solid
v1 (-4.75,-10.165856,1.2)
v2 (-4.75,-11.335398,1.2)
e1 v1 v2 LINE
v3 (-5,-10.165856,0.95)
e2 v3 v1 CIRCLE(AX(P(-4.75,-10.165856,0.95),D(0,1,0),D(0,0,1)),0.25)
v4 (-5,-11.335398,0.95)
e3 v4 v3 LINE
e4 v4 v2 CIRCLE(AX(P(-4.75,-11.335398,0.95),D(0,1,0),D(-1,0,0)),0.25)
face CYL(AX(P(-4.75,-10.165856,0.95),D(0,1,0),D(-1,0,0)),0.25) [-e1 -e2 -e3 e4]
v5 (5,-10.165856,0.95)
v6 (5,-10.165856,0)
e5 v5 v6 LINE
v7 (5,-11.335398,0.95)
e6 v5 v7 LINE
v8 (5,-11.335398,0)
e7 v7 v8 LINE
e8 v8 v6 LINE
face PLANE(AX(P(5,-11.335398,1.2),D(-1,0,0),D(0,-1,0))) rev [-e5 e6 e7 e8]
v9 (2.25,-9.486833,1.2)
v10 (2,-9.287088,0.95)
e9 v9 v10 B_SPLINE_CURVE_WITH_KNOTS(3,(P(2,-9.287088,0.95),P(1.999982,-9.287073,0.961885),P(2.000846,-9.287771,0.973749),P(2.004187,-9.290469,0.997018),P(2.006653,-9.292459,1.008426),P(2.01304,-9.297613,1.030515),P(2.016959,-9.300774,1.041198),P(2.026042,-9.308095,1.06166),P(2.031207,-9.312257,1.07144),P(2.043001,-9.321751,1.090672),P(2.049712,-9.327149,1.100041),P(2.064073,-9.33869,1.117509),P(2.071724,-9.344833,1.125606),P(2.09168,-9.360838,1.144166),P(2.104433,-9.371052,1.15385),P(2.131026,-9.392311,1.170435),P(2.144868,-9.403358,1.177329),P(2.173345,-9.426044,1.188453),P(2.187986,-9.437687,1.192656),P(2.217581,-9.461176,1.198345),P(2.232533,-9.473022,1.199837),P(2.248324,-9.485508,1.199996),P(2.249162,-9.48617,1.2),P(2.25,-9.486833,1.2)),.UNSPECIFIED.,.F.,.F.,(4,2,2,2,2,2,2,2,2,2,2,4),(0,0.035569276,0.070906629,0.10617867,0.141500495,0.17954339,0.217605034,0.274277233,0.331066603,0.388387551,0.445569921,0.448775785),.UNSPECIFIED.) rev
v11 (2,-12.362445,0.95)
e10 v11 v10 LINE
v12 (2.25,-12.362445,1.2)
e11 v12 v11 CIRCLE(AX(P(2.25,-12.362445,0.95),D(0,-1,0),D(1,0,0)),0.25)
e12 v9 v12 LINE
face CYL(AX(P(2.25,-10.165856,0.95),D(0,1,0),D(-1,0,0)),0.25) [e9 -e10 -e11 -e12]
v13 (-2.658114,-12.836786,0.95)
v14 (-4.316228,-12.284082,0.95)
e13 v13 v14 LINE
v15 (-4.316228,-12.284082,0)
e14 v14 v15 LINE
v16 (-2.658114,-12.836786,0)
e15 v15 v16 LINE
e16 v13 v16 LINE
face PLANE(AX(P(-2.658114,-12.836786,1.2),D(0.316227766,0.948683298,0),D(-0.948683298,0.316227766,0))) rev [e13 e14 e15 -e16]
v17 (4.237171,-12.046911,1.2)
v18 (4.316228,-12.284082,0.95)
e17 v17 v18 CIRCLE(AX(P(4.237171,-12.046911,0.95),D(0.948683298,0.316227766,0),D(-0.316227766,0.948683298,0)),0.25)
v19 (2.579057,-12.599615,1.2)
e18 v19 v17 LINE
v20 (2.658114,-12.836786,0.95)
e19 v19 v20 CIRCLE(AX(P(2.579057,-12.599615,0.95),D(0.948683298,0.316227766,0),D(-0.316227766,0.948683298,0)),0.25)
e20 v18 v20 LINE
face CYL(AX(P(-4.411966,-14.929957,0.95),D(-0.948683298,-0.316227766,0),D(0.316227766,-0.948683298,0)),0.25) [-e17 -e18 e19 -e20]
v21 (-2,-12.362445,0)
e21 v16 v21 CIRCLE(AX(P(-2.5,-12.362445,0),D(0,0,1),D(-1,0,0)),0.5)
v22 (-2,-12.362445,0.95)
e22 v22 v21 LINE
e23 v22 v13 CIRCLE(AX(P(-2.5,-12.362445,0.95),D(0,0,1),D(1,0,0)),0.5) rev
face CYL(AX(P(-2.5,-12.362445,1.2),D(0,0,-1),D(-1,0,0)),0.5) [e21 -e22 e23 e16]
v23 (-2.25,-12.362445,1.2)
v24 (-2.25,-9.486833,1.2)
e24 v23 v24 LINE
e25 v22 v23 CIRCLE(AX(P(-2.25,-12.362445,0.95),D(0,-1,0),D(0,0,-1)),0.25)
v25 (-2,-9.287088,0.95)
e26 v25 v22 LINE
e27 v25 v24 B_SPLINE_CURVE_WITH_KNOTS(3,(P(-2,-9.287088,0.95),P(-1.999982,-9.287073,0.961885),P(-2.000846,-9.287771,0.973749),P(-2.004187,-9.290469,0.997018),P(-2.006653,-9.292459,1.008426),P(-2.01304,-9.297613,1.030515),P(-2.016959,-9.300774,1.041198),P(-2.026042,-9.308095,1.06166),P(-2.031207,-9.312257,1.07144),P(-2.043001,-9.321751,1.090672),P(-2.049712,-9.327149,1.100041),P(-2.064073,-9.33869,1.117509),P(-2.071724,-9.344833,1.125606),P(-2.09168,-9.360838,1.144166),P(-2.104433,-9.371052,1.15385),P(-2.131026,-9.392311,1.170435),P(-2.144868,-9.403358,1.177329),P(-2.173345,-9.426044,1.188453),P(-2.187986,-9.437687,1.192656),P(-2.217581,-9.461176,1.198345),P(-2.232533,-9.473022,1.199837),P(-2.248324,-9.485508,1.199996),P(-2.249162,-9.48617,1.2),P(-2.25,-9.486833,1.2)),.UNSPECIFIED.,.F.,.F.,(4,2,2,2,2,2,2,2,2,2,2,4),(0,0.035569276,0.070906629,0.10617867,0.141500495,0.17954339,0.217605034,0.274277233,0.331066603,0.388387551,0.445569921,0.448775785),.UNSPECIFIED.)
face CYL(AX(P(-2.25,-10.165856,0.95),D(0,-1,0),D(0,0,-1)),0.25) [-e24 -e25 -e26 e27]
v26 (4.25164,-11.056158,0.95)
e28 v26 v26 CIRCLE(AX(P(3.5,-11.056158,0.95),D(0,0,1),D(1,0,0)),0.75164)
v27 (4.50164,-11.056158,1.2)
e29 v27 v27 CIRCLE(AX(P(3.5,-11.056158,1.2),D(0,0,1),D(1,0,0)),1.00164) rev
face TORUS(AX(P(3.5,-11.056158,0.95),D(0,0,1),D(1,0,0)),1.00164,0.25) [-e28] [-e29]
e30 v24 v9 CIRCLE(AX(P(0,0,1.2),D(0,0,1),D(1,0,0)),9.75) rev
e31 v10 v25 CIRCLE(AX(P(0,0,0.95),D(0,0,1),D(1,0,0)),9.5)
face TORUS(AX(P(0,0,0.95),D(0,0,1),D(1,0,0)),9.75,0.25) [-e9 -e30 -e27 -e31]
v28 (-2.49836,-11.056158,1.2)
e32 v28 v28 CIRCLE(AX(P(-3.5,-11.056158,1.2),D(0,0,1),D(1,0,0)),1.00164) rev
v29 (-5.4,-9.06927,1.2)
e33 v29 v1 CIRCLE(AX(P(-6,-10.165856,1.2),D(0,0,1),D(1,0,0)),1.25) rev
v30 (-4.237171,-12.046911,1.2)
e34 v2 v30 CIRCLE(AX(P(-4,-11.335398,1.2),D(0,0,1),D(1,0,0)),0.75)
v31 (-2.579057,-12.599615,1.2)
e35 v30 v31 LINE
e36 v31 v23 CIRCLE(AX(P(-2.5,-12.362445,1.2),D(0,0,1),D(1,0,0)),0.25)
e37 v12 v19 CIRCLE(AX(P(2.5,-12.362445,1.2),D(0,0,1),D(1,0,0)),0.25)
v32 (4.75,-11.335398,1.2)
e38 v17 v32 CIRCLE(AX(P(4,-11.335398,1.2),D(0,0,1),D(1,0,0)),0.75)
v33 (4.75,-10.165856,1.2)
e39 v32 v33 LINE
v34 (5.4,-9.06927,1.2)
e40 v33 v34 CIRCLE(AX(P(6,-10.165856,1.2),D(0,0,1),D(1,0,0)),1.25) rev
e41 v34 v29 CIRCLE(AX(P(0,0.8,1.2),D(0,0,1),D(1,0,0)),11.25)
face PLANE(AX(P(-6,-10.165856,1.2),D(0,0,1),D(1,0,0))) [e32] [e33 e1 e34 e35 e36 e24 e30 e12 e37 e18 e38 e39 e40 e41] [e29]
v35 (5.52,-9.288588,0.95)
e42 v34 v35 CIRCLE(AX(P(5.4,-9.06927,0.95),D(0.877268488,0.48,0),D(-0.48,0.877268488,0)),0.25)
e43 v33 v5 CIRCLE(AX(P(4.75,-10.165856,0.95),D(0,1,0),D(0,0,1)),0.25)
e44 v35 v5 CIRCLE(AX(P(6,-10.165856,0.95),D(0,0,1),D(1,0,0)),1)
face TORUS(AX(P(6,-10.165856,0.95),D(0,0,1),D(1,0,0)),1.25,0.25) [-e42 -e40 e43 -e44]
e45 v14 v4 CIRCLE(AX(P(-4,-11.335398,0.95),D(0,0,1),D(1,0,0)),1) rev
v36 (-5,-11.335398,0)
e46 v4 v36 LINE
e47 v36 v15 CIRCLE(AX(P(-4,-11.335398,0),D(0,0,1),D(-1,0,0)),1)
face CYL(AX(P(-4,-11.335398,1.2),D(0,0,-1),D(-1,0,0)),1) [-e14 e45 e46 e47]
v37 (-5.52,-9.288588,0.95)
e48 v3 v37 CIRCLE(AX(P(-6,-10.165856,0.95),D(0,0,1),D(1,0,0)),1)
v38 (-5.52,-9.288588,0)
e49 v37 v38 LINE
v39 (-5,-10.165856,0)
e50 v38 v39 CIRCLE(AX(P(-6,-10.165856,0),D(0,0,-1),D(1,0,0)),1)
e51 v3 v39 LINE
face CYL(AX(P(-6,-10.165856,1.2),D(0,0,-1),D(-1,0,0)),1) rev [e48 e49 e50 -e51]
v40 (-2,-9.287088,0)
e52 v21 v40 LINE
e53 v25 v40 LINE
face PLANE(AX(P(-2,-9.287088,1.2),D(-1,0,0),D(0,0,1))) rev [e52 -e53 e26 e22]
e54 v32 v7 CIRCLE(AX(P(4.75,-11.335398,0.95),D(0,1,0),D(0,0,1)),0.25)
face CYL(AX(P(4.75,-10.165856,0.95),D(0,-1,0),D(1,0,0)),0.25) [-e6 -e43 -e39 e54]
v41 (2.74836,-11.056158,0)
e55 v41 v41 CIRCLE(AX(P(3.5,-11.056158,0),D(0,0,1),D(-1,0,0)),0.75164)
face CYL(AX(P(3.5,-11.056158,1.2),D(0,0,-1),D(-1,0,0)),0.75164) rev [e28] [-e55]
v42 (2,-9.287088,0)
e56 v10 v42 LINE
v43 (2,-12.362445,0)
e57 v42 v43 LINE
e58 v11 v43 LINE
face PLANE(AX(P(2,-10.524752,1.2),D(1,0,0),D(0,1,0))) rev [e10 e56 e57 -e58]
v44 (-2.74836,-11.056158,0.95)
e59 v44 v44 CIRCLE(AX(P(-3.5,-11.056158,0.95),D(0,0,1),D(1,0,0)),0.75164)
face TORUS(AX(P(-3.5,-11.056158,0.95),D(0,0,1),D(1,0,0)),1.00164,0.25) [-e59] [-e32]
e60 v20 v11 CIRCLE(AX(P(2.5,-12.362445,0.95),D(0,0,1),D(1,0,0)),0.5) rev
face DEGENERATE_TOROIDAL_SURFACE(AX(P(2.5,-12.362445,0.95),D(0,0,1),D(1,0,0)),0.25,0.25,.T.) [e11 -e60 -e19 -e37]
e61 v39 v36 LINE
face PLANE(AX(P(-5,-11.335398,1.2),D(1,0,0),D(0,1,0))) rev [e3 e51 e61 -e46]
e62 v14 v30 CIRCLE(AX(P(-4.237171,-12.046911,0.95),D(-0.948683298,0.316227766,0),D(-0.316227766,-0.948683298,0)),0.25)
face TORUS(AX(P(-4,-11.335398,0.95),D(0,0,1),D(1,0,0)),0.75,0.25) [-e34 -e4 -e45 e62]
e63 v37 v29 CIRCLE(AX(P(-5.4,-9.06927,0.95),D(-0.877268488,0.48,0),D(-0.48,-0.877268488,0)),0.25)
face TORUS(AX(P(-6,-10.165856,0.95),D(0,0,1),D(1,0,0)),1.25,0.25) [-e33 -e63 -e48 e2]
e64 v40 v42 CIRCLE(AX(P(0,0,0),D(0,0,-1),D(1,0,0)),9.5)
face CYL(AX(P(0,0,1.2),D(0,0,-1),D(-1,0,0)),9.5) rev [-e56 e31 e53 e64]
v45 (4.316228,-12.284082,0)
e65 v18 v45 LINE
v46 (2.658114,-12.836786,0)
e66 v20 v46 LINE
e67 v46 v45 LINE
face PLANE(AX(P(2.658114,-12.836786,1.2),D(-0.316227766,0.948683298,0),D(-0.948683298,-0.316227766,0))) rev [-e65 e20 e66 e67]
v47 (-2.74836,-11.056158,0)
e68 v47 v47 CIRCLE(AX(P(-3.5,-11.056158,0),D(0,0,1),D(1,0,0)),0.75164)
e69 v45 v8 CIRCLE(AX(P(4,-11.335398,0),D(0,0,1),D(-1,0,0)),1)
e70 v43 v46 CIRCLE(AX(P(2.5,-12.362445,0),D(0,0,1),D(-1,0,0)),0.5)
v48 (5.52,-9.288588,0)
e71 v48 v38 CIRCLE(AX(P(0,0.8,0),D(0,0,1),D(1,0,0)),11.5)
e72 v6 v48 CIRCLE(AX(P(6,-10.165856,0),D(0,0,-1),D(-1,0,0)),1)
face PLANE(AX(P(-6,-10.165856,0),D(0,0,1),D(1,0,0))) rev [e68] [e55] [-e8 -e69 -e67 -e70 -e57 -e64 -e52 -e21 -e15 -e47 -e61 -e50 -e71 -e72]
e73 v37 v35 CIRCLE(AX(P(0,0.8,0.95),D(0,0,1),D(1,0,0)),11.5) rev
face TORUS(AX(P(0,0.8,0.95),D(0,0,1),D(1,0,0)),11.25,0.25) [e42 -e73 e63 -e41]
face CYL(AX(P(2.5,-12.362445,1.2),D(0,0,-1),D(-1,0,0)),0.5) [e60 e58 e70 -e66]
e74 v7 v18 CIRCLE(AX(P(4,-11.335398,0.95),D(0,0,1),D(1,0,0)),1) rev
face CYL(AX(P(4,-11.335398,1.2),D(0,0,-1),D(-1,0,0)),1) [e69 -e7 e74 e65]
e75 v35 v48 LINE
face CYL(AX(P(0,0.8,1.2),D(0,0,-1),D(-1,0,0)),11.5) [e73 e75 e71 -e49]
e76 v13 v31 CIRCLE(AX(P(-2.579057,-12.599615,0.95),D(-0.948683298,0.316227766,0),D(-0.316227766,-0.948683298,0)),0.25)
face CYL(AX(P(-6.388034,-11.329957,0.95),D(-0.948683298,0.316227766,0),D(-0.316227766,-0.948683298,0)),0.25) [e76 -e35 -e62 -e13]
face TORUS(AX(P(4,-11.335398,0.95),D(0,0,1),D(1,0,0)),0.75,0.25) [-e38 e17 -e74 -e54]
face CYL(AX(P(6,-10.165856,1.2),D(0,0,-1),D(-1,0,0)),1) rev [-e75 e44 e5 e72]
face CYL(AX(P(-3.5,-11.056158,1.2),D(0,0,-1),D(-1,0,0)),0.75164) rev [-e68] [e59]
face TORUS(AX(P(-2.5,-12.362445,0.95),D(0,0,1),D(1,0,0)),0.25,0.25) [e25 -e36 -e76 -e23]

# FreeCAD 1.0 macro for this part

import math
import FreeCAD as App
import Part
import Sketcher
Q = App.Units.Quantity


def edges_at(feature, points):
    """Names of the edges that pass closest to the given points."""
    edges = feature.Shape.Edges
    near = lambda p: min(range(len(edges)), key=lambda i: edges[i].distToShape(Part.Vertex(*p))[0])
    return sorted({f"Edge{near(p) + 1}" for p in points})

doc = App.newDocument("Part")
body = doc.addObject("PartDesign::Body", "Body")

sketch1 = body.newObject("Sketcher::SketchObject", "Sketch")
sketch1.AttachmentSupport = (doc.getObject("XY_Plane"), [""])
sketch1.MapMode = "FlatFace"
sketch1.addGeometry(Part.LineSegment(App.Vector(-2, -12.4, 0), App.Vector(-2, -9.3, 0)), False)
sketch1.addGeometry(Part.ArcOfCircle(Part.Circle(App.Vector(0, 0, 0), App.Vector(0, 0, 1), 9.5), math.radians(-78), math.radians(258)), False)
sketch1.addGeometry(Part.LineSegment(App.Vector(2, -9.3, 0), App.Vector(2, -12.4, 0)), False)
sketch1.addGeometry(Part.ArcOfCircle(Part.Circle(App.Vector(2.5, -12.4, 0), App.Vector(0, 0, 1), 0.5), math.radians(180), math.radians(288)), False)
sketch1.addGeometry(Part.LineSegment(App.Vector(2.7, -12.8, 0), App.Vector(4.3, -12.3, 0)), False)
sketch1.addGeometry(Part.ArcOfCircle(Part.Circle(App.Vector(4, -11.3, 0), App.Vector(0, 0, 1), 1), math.radians(-72), math.radians(0)), False)
sketch1.addGeometry(Part.LineSegment(App.Vector(5, -11.3, 0), App.Vector(5, -10.2, 0)), False)
sketch1.addGeometry(Part.ArcOfCircle(Part.Circle(App.Vector(6, -10.2, 0), App.Vector(0, 0, 1), 1), math.radians(119), math.radians(180)), False)
sketch1.addGeometry(Part.ArcOfCircle(Part.Circle(App.Vector(0, 0.8, 0), App.Vector(0, 0, 1), 11.5), math.radians(-61), math.radians(241)), False)
sketch1.addGeometry(Part.ArcOfCircle(Part.Circle(App.Vector(-6, -10.2, 0), App.Vector(0, 0, 1), 1), math.radians(0), math.radians(61)), False)
sketch1.addGeometry(Part.LineSegment(App.Vector(-5, -10.2, 0), App.Vector(-5, -11.3, 0)), False)
sketch1.addGeometry(Part.ArcOfCircle(Part.Circle(App.Vector(-4, -11.3, 0), App.Vector(0, 0, 1), 1), math.radians(-180), math.radians(-108)), False)
sketch1.addGeometry(Part.LineSegment(App.Vector(-4.3, -12.3, 0), App.Vector(-2.7, -12.8, 0)), False)
sketch1.addGeometry(Part.ArcOfCircle(Part.Circle(App.Vector(-2.5, -12.4, 0), App.Vector(0, 0, 1), 0.5), math.radians(-108), math.radians(0)), False)
sketch1.addGeometry(Part.Circle(App.Vector(3.5, -11.1, 0), App.Vector(0, 0, 1), 0.8), False)
sketch1.addGeometry(Part.Circle(App.Vector(-3.5, -11.1, 0), App.Vector(0, 0, 1), 0.8), False)
sketch1.addConstraint(Sketcher.Constraint("Coincident", 0, 2, 1, 2))
sketch1.addConstraint(Sketcher.Constraint("Coincident", 1, 1, 2, 1))
sketch1.addConstraint(Sketcher.Constraint("Tangent", 2, 2, 3, 1))
sketch1.addConstraint(Sketcher.Constraint("Tangent", 3, 2, 4, 1))
sketch1.addConstraint(Sketcher.Constraint("Tangent", 4, 2, 5, 1))
sketch1.addConstraint(Sketcher.Constraint("Tangent", 5, 2, 6, 1))
sketch1.addConstraint(Sketcher.Constraint("Tangent", 6, 2, 7, 2))
sketch1.addConstraint(Sketcher.Constraint("Tangent", 7, 1, 8, 1))
sketch1.addConstraint(Sketcher.Constraint("Tangent", 8, 2, 9, 2))
sketch1.addConstraint(Sketcher.Constraint("Tangent", 9, 1, 10, 1))
sketch1.addConstraint(Sketcher.Constraint("Tangent", 10, 2, 11, 1))
sketch1.addConstraint(Sketcher.Constraint("Tangent", 11, 2, 12, 1))
sketch1.addConstraint(Sketcher.Constraint("Tangent", 12, 2, 13, 1))
sketch1.addConstraint(Sketcher.Constraint("Tangent", 13, 2, 0, 1))
sketch1.addConstraint(Sketcher.Constraint("Vertical", 0))
sketch1.addConstraint(Sketcher.Constraint("Vertical", 2))
sketch1.addConstraint(Sketcher.Constraint("Vertical", 6))
sketch1.addConstraint(Sketcher.Constraint("Vertical", 10))
sketch1.addConstraint(Sketcher.Constraint("Coincident", 1, 3, -1, 1))
sketch1.addConstraint(Sketcher.Constraint("Equal", 5, 7))
sketch1.addConstraint(Sketcher.Constraint("Equal", 7, 9))
sketch1.addConstraint(Sketcher.Constraint("Equal", 9, 11))
sketch1.addConstraint(Sketcher.Constraint("Equal", 3, 13))
sketch1.addConstraint(Sketcher.Constraint("Equal", 14, 15))
sketch1.addConstraint(Sketcher.Constraint("Symmetric", 7, 3, 9, 3, -2))
sketch1.addConstraint(Sketcher.Constraint("Symmetric", 3, 3, 13, 3, -2))
sketch1.addConstraint(Sketcher.Constraint("Symmetric", 14, 3, 15, 3, -2))
sketch1.addConstraint(Sketcher.Constraint("Horizontal", 5, 3, 11, 3))
sketch1.addConstraint(Sketcher.Constraint("Radius", 5, Q("1 mm")))
sketch1.addConstraint(Sketcher.Constraint("Radius", 1, Q("9.5 mm")))
sketch1.addConstraint(Sketcher.Constraint("Radius", 3, Q("0.5 mm")))
sketch1.addConstraint(Sketcher.Constraint("Radius", 8, Q("11.5 mm")))
sketch1.addConstraint(Sketcher.Constraint("DistanceX", -1, 1, 5, 3, Q("4 mm")))
sketch1.addConstraint(Sketcher.Constraint("DistanceX", 0, 2, -1, 1, Q("2 mm")))
sketch1.addConstraint(Sketcher.Constraint("DistanceX", 3, 3, 14, 3, Q("1 mm")))
sketch1.addConstraint(Sketcher.Constraint("DistanceY", -1, 1, 8, 3, Q("0.8 mm")))
sketch1.addConstraint(Sketcher.Constraint("Diameter", 14, Q("1.50328 mm")))
sketch1.addConstraint(Sketcher.Constraint("DistanceY", 5, 3, -1, 1, Q("11.335398 mm")))
sketch1.addConstraint(Sketcher.Constraint("DistanceY", 14, 3, 7, 3, Q("0.890301 mm")))
sketch1.addConstraint(Sketcher.Constraint("DistanceY", 3, 2, 1, 1, Q("3.549698 mm")))
pad1 = body.newObject("PartDesign::Pad", "Pad")
pad1.Profile = sketch1
pad1.Length = 1.2
doc.recompute()

fillet = body.newObject("PartDesign::Fillet", "Fillet")
fillet.Base = (pad1, edges_at(pad1, [
    (-4.811, -11.92, 1.2),
    (-3.487, -12.56, 1.2),
    (-2.208, -12.768, 1.2),
    (-2, -10.825, 1.2),
    (0, 9.5, 1.2),
    (2, -10.825, 1.2),
    (2.208, -12.768, 1.2),
    (3.487, -12.56, 1.2),
    (-4.252, -11.056, 1.2),
    (-5.14, -9.656, 1.2),
    (4.811, -11.92, 1.2),
    (5, -10.751, 1.2),
    (4.252, -11.056, 1.2),
    (5.14, -9.656, 1.2),
    (0, 12.3, 1.2),
    (-5, -10.751, 1.2),
]))
fillet.Radius = 0.25

doc.recompute()
